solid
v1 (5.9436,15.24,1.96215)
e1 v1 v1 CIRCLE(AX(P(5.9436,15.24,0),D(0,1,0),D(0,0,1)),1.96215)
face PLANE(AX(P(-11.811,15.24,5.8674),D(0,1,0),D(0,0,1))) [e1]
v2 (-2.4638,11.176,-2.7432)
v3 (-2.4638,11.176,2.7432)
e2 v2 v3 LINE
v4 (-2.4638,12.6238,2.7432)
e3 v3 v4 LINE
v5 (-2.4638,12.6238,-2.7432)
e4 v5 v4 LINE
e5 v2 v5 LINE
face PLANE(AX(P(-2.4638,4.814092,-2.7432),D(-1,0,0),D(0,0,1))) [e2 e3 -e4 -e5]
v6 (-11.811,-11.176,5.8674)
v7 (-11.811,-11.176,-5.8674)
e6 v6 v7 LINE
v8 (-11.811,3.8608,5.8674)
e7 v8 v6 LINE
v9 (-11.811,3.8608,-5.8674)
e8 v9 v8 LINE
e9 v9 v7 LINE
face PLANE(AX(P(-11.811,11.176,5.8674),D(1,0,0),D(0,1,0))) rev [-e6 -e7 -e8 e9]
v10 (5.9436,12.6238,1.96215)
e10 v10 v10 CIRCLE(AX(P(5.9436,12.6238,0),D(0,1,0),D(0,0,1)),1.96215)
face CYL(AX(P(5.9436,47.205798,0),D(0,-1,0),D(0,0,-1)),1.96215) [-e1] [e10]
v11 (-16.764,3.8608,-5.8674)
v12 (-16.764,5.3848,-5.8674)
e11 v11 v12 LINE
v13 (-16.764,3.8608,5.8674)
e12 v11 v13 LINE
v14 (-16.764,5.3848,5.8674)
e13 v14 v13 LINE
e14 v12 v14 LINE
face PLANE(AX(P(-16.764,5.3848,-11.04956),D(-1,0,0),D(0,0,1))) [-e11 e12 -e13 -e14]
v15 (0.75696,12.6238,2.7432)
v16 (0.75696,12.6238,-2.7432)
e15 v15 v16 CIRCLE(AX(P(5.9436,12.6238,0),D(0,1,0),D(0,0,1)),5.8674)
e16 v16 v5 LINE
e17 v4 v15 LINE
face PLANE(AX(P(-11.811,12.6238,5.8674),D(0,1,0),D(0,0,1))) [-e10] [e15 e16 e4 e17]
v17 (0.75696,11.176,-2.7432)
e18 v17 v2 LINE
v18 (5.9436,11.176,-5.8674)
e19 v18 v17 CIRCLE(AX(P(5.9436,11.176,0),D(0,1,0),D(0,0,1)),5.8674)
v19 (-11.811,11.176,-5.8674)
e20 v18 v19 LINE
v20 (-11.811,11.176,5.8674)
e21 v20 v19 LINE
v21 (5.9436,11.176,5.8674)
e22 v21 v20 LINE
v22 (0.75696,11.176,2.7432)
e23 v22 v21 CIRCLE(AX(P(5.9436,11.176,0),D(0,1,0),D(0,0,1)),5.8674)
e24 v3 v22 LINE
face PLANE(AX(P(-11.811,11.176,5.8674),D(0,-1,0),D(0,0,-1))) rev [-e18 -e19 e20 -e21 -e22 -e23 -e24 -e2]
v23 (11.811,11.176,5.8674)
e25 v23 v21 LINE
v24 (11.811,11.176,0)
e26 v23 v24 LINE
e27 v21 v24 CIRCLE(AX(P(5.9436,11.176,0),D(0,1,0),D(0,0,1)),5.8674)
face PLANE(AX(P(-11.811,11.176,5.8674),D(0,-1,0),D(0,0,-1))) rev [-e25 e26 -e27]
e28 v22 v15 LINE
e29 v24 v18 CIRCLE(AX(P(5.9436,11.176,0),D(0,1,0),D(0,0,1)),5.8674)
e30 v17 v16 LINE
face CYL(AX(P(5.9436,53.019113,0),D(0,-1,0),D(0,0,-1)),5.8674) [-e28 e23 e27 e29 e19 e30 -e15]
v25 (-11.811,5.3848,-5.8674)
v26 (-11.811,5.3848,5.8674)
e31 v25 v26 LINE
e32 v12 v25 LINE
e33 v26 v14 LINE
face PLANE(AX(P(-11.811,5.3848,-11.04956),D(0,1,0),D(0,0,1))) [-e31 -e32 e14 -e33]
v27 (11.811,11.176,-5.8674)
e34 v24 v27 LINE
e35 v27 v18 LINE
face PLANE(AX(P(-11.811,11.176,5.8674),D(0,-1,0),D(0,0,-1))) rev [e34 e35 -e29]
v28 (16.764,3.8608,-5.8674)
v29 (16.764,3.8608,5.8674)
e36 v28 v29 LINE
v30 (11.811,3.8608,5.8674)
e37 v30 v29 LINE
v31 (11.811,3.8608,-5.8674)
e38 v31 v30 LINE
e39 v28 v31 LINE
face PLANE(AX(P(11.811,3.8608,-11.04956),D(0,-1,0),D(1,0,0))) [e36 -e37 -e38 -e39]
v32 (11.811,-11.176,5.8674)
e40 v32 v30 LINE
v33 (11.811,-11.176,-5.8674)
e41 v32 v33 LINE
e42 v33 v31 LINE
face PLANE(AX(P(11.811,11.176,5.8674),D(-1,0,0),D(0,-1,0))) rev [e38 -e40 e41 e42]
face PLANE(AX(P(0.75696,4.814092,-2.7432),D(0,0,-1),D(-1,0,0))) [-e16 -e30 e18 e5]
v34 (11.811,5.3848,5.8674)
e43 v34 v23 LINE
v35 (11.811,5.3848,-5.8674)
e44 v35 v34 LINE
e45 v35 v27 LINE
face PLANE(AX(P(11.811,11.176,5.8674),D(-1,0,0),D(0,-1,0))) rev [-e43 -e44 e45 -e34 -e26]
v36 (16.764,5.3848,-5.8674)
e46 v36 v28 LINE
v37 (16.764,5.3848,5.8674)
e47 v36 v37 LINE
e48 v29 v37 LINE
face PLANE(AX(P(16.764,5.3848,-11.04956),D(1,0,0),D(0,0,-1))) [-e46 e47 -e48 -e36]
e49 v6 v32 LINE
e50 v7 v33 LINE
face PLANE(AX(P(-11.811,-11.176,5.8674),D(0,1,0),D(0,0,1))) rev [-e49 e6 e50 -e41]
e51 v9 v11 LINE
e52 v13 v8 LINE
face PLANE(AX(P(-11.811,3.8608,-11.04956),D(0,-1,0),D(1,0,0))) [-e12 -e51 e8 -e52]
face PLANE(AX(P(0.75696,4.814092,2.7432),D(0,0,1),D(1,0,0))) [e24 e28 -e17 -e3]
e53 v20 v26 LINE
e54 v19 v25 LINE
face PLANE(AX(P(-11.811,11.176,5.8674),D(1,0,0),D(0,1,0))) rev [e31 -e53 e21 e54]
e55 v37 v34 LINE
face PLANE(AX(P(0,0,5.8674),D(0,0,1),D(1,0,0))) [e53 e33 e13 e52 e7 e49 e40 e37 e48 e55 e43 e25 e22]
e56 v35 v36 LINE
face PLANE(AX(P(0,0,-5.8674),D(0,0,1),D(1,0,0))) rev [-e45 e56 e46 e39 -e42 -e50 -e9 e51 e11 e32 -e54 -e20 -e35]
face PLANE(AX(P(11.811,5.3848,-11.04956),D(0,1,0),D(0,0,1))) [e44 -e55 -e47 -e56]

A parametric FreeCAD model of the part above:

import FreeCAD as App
import Part
import Sketcher
Q = App.Units.Quantity

doc = App.newDocument("Part")
body = doc.addObject("PartDesign::Body", "Body")

# Sketch on XY plane
sketch1 = doc.addObject("Sketcher::SketchObject", "Sketch")
body.addObject(sketch1)
sketch1.AttachmentSupport = (doc.XY_Plane, [""])
sketch1.MapMode = "FlatFace"
sketch1.addGeometry([
    Part.LineSegment(App.Vector(-12, 11, 0), App.Vector(-12, -11, 0)),
    Part.LineSegment(App.Vector(-12, -11, 0), App.Vector(12, -11, 0)),
    Part.LineSegment(App.Vector(12, -11, 0), App.Vector(12, 11, 0)),
    Part.LineSegment(App.Vector(12, 11, 0), App.Vector(-12, 11, 0)),
], False)
sketch1.addConstraint([
    Sketcher.Constraint("Coincident", 0, 2, 1, 1),
    Sketcher.Constraint("Coincident", 1, 2, 2, 1),
    Sketcher.Constraint("Coincident", 2, 2, 3, 1),
    Sketcher.Constraint("Coincident", 3, 2, 0, 1),
    Sketcher.Constraint("Vertical", 0),
    Sketcher.Constraint("Horizontal", 1),
    Sketcher.Constraint("Vertical", 2),
    Sketcher.Constraint("Horizontal", 3),
    Sketcher.Constraint("Symmetric", 0, 2, 2, 2, -1, 1),
    Sketcher.Constraint("DistanceX", 1, 1, 1, 2, Q("0.93 in")),
    Sketcher.Constraint("DistanceY", 0, 2, 0, 1, Q("0.88 in")),
])
pad1 = doc.addObject("PartDesign::Pad", "Pad")
body.addObject(pad1)
pad1.Profile = sketch1
pad1.Length = Q("0.462 in")
pad1.Midplane = True

# Sketch on XY plane
sketch2 = doc.addObject("Sketcher::SketchObject", "Sketch001")
body.addObject(sketch2)
sketch2.AttachmentSupport = (doc.XY_Plane, [""])
sketch2.MapMode = "FlatFace"
sketch2.AttachmentOffset = App.Placement(App.Vector(0, 0, 0.231 * 25.4), App.Rotation())
sketch2.addGeometry([
    Part.LineSegment(App.Vector(-16.8, 5.4, 0), App.Vector(-16.8, 3.9, 0)),  # 0
    Part.LineSegment(App.Vector(-16.8, 3.9, 0), App.Vector(-11.8, 3.9, 0)),  # 1
    Part.LineSegment(App.Vector(-11.8, 3.9, 0), App.Vector(-11.8, 5.4, 0)),  # 2
    Part.LineSegment(App.Vector(-11.8, 5.4, 0), App.Vector(-16.8, 5.4, 0)),  # 3
    Part.LineSegment(App.Vector(11.8, 5.4, 0), App.Vector(11.8, 3.9, 0)),  # 4
    Part.LineSegment(App.Vector(11.8, 3.9, 0), App.Vector(16.8, 3.9, 0)),  # 5
    Part.LineSegment(App.Vector(16.8, 3.9, 0), App.Vector(16.8, 5.4, 0)),  # 6
    Part.LineSegment(App.Vector(16.8, 5.4, 0), App.Vector(11.8, 5.4, 0)),  # 7
], False)
sketch2.addConstraint([
    Sketcher.Constraint("Coincident", 0, 2, 1, 1),
    Sketcher.Constraint("Coincident", 1, 2, 2, 1),
    Sketcher.Constraint("Coincident", 2, 2, 3, 1),
    Sketcher.Constraint("Coincident", 3, 2, 0, 1),
    Sketcher.Constraint("Coincident", 4, 2, 5, 1),
    Sketcher.Constraint("Coincident", 5, 2, 6, 1),
    Sketcher.Constraint("Coincident", 6, 2, 7, 1),
    Sketcher.Constraint("Coincident", 7, 2, 4, 1),
    Sketcher.Constraint("Vertical", 0),
    Sketcher.Constraint("Horizontal", 1),
    Sketcher.Constraint("Vertical", 2),
    Sketcher.Constraint("Horizontal", 3),
    Sketcher.Constraint("Vertical", 4),
    Sketcher.Constraint("Horizontal", 5),
    Sketcher.Constraint("Vertical", 6),
    Sketcher.Constraint("Horizontal", 7),
    Sketcher.Constraint("Symmetric", 1, 2, 4, 2, -2),
    Sketcher.Constraint("Symmetric", 3, 2, 6, 2, -2),
    Sketcher.Constraint("DistanceY", 0, 2, 0, 1, Q("0.06 in")),
    Sketcher.Constraint("DistanceX", 1, 1, 1, 2, Q("0.195 in")),
    Sketcher.Constraint("DistanceX", 0, 2, -1, 1, Q("0.66 in")),
    Sketcher.Constraint("DistanceY", -1, 1, 0, 2, Q("0.152 in")),
])
pad2 = doc.addObject("PartDesign::Pad", "Pad001")
body.addObject(pad2)
pad2.Profile = sketch2
pad2.Length = Q("0.462 in")
pad2.Reversed = True

# Sketch on XZ plane
sketch3 = doc.addObject("Sketcher::SketchObject", "Sketch002")
body.addObject(sketch3)
sketch3.AttachmentSupport = (doc.XZ_Plane, [""])
sketch3.MapMode = "FlatFace"
sketch3.AttachmentOffset = App.Placement(App.Vector(0, 0, -0.44 * 25.4), App.Rotation())
sketch3.addGeometry(Part.Circle(App.Vector(6, 0, 0), App.Vector(0, 0, 1), 6), False)
sketch3.addConstraint([
    Sketcher.Constraint("PointOnObject", 0, 3, -1),
    Sketcher.Constraint("Diameter", 0, Q("0.462 in")),
    Sketcher.Constraint("DistanceX", -1, 1, 0, 3, Q("0.234 in")),
])
pad3 = doc.addObject("PartDesign::Pad", "Pad002")
body.addObject(pad3)
pad3.Profile = sketch3
pad3.Length = Q("0.057 in")
pad3.Reversed = True

# Sketch on XZ plane
sketch4 = doc.addObject("Sketcher::SketchObject", "Sketch003")
body.addObject(sketch4)
sketch4.AttachmentSupport = (doc.XZ_Plane, [""])
sketch4.MapMode = "FlatFace"
sketch4.AttachmentOffset = App.Placement(App.Vector(0, 0, -0.497 * 25.4), App.Rotation())
sketch4.addGeometry(Part.Circle(App.Vector(5.9, 0, 0), App.Vector(0, 0, 1), 2), False)
sketch4.addConstraint([
    Sketcher.Constraint("PointOnObject", 0, 3, -1),
    Sketcher.Constraint("Diameter", 0, Q("0.1545 in")),
    Sketcher.Constraint("DistanceX", -1, 1, 0, 3, Q("0.234 in")),
])
pad4 = doc.addObject("PartDesign::Pad", "Pad003")
body.addObject(pad4)
pad4.Profile = sketch4
pad4.Length = Q("0.103 in")
pad4.Reversed = True

# Sketch on XZ plane
sketch5 = doc.addObject("Sketcher::SketchObject", "Sketch004")
body.addObject(sketch5)
sketch5.AttachmentSupport = (doc.XZ_Plane, [""])
sketch5.MapMode = "FlatFace"
sketch5.AttachmentOffset = App.Placement(App.Vector(0, 0, -0.497 * 25.4), App.Rotation())
sketch5.addGeometry([
    Part.LineSegment(App.Vector(-2.5, -2.7, 0), App.Vector(-2.5, 2.7, 0)),
    Part.LineSegment(App.Vector(-2.5, 2.7, 0), App.Vector(0.8, 2.7, 0)),
    Part.LineSegment(App.Vector(0.8, 2.7, 0), App.Vector(0.8, -2.7, 0)),
    Part.LineSegment(App.Vector(0.8, -2.7, 0), App.Vector(-2.5, -2.7, 0)),
], False)
sketch5.addConstraint([
    Sketcher.Constraint("Coincident", 0, 2, 1, 1),
    Sketcher.Constraint("Coincident", 1, 2, 2, 1),
    Sketcher.Constraint("Coincident", 2, 2, 3, 1),
    Sketcher.Constraint("Coincident", 3, 2, 0, 1),
    Sketcher.Constraint("Vertical", 0),
    Sketcher.Constraint("Horizontal", 1),
    Sketcher.Constraint("Vertical", 2),
    Sketcher.Constraint("Horizontal", 3),
    Sketcher.Constraint("DistanceY", 0, 1, 0, 2, Q("0.216 in")),
    Sketcher.Constraint("DistanceX", 0, 2, -1, 1, Q("0.097 in")),
    Sketcher.Constraint("DistanceY", -1, 1, 0, 2, Q("0.108 in")),
    Sketcher.Constraint("DistanceX", 1, 1, 1, 2, 3.22076),
])
pad5 = doc.addObject("PartDesign::Pad", "Pad004")
body.addObject(pad5)
pad5.Profile = sketch5
pad5.Length = Q("0.057 in")

doc.recompute()
